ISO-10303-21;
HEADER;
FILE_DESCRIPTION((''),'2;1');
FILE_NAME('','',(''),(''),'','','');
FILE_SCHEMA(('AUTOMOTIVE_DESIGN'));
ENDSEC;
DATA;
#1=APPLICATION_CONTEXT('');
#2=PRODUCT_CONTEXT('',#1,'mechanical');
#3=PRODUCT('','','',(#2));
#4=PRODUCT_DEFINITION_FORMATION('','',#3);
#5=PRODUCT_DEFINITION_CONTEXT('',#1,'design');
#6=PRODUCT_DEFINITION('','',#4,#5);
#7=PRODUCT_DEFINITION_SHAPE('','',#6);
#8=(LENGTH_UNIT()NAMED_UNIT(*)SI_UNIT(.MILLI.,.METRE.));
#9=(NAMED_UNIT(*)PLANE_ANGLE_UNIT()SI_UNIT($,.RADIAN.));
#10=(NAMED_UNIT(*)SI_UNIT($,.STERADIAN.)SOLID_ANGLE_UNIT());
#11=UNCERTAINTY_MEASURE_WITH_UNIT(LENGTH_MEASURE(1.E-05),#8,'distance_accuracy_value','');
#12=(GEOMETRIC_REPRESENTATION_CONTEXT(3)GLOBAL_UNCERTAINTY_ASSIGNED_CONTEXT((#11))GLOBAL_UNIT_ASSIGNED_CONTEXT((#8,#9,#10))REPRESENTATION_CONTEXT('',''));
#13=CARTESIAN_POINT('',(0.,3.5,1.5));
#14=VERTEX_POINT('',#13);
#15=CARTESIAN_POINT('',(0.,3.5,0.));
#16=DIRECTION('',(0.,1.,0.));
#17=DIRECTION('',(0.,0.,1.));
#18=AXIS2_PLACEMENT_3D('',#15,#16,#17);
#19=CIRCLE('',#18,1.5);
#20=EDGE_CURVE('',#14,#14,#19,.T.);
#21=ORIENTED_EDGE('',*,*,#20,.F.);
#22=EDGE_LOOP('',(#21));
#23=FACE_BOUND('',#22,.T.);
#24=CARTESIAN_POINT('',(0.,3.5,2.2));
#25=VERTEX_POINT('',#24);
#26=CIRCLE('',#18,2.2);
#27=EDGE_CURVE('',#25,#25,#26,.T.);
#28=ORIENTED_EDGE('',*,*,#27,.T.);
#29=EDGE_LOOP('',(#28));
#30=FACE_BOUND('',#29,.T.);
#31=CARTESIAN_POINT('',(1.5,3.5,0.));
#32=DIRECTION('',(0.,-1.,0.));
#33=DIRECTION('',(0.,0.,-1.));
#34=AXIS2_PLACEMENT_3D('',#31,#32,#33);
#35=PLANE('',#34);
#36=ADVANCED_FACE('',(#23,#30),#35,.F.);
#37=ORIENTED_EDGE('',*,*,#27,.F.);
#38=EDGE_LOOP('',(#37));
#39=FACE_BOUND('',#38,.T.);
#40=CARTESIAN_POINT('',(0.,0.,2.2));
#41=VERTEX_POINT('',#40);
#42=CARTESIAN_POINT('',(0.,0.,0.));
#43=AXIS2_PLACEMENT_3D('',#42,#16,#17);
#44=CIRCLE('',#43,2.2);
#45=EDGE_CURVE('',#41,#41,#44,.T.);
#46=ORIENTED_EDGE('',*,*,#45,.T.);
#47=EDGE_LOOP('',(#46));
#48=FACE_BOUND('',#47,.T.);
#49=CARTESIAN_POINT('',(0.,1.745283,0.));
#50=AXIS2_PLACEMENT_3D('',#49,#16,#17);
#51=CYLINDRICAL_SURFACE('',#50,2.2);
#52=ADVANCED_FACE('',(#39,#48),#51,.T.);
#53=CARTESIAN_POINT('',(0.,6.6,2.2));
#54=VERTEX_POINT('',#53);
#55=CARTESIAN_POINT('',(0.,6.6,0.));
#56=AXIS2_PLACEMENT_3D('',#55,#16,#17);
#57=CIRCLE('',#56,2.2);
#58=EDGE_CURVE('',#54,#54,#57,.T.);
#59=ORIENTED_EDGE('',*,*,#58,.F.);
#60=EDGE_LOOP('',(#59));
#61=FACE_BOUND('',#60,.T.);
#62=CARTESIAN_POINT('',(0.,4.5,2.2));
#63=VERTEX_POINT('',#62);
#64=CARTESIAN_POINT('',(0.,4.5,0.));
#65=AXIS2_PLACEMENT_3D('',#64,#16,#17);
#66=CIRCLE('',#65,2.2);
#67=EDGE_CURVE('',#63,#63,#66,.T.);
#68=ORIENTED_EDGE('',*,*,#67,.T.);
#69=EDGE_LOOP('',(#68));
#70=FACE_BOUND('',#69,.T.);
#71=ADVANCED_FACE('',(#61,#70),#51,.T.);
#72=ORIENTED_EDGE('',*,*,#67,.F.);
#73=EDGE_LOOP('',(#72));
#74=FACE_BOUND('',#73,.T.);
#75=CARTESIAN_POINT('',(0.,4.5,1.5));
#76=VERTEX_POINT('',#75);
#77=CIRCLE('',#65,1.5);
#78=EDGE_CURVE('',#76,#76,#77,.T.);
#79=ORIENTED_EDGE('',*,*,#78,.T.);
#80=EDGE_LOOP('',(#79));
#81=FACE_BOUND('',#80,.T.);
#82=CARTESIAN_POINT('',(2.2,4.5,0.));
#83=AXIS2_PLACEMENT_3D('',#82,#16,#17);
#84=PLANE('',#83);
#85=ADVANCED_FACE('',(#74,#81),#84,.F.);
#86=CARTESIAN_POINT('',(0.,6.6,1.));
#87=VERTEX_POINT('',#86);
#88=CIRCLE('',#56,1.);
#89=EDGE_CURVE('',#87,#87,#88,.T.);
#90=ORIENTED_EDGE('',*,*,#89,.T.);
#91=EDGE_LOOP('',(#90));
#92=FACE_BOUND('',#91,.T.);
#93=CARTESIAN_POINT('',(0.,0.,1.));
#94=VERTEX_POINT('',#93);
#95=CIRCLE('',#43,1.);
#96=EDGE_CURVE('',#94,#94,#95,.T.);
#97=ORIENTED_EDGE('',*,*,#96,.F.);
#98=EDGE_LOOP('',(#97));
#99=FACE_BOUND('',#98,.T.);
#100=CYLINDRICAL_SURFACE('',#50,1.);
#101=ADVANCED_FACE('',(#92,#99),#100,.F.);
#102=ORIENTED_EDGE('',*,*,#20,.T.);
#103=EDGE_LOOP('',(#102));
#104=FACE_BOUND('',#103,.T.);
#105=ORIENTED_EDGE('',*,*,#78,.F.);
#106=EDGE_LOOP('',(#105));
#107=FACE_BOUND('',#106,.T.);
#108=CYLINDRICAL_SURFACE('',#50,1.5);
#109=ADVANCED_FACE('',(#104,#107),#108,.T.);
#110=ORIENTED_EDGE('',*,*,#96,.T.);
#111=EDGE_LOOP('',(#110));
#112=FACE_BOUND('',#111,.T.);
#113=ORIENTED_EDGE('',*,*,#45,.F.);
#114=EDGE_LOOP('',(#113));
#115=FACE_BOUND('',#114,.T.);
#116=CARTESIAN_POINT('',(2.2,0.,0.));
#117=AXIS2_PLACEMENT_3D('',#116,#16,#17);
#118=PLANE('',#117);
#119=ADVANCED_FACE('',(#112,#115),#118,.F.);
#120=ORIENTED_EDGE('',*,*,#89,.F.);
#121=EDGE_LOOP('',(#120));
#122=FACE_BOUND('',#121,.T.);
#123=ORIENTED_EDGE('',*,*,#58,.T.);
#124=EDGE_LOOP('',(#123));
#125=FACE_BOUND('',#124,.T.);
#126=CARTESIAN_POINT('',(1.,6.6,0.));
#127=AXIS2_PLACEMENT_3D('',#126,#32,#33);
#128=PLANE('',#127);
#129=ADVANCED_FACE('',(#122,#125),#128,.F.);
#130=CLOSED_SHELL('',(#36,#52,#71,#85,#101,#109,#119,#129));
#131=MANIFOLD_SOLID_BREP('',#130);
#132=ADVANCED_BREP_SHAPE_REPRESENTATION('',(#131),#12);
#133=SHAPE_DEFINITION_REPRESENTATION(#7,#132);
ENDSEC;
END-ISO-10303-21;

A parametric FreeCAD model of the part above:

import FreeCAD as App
import Part
import Sketcher
from FreeCAD import Vector
Q = App.Units.Quantity


def add_polygon(sketch, points):
    """Adds a closed chain of lines whose ends are joined by coincident constraints."""
    first, n = sketch.GeometryCount, len(points)
    for a, b in zip(points, points[1:] + points[:1]):
        sketch.addGeometry(Part.LineSegment(App.Vector(*a, 0), App.Vector(*b, 0)), False)
    for i in range(n):
        sketch.addConstraint(Sketcher.Constraint("Coincident", first + i, 2, first + (i + 1) % n, 1))

doc = App.newDocument("Part")
body = doc.addObject("PartDesign::Body", "Body")

# Sketch on XY plane
sketch1 = body.newObject("Sketcher::SketchObject", "Sketch")
sketch1.AttachmentSupport = (doc.getObject("XY_Plane"), [""])
sketch1.MapMode = "FlatFace"
add_polygon(sketch1, [(1, 6.6), (1, 0), (2.2, 0), (2.2, 3.5), (1.5, 3.5), (1.5, 4.5), (2.2, 4.5), (2.2, 6.6)])  # lines 0-7
sketch1.addConstraint([
    Sketcher.Constraint("Vertical", 0),
    Sketcher.Constraint("Horizontal", 1),
    Sketcher.Constraint("Vertical", 2),
    Sketcher.Constraint("Horizontal", 3),
    Sketcher.Constraint("Vertical", 4),
    Sketcher.Constraint("Horizontal", 5),
    Sketcher.Constraint("Vertical", 6),
    Sketcher.Constraint("Horizontal", 7),
    Sketcher.Constraint("PointOnObject", 0, 2, -1),
    Sketcher.Constraint("Vertical", 2, 2, 5, 2),
    Sketcher.Constraint("DistanceY", 4, 1, 4, 2, Q("1 mm")),
    Sketcher.Constraint("DistanceX", 1, 1, 1, 2, Q("1.2 mm")),
    Sketcher.Constraint("DistanceX", 3, 2, 3, 1, Q("0.7 mm")),
    Sketcher.Constraint("DistanceY", 0, 2, 0, 1, Q("6.6 mm")),
    Sketcher.Constraint("DistanceY", 2, 1, 2, 2, Q("3.5 mm")),
    Sketcher.Constraint("DistanceX", -1, 1, 0, 2, Q("1 mm")),
])
revolution = body.newObject("PartDesign::Revolution", "Revolution")
revolution.Profile = sketch1
revolution.ReferenceAxis = (sketch1, ["V_Axis"])
revolution.Angle = 360

doc.recompute()
